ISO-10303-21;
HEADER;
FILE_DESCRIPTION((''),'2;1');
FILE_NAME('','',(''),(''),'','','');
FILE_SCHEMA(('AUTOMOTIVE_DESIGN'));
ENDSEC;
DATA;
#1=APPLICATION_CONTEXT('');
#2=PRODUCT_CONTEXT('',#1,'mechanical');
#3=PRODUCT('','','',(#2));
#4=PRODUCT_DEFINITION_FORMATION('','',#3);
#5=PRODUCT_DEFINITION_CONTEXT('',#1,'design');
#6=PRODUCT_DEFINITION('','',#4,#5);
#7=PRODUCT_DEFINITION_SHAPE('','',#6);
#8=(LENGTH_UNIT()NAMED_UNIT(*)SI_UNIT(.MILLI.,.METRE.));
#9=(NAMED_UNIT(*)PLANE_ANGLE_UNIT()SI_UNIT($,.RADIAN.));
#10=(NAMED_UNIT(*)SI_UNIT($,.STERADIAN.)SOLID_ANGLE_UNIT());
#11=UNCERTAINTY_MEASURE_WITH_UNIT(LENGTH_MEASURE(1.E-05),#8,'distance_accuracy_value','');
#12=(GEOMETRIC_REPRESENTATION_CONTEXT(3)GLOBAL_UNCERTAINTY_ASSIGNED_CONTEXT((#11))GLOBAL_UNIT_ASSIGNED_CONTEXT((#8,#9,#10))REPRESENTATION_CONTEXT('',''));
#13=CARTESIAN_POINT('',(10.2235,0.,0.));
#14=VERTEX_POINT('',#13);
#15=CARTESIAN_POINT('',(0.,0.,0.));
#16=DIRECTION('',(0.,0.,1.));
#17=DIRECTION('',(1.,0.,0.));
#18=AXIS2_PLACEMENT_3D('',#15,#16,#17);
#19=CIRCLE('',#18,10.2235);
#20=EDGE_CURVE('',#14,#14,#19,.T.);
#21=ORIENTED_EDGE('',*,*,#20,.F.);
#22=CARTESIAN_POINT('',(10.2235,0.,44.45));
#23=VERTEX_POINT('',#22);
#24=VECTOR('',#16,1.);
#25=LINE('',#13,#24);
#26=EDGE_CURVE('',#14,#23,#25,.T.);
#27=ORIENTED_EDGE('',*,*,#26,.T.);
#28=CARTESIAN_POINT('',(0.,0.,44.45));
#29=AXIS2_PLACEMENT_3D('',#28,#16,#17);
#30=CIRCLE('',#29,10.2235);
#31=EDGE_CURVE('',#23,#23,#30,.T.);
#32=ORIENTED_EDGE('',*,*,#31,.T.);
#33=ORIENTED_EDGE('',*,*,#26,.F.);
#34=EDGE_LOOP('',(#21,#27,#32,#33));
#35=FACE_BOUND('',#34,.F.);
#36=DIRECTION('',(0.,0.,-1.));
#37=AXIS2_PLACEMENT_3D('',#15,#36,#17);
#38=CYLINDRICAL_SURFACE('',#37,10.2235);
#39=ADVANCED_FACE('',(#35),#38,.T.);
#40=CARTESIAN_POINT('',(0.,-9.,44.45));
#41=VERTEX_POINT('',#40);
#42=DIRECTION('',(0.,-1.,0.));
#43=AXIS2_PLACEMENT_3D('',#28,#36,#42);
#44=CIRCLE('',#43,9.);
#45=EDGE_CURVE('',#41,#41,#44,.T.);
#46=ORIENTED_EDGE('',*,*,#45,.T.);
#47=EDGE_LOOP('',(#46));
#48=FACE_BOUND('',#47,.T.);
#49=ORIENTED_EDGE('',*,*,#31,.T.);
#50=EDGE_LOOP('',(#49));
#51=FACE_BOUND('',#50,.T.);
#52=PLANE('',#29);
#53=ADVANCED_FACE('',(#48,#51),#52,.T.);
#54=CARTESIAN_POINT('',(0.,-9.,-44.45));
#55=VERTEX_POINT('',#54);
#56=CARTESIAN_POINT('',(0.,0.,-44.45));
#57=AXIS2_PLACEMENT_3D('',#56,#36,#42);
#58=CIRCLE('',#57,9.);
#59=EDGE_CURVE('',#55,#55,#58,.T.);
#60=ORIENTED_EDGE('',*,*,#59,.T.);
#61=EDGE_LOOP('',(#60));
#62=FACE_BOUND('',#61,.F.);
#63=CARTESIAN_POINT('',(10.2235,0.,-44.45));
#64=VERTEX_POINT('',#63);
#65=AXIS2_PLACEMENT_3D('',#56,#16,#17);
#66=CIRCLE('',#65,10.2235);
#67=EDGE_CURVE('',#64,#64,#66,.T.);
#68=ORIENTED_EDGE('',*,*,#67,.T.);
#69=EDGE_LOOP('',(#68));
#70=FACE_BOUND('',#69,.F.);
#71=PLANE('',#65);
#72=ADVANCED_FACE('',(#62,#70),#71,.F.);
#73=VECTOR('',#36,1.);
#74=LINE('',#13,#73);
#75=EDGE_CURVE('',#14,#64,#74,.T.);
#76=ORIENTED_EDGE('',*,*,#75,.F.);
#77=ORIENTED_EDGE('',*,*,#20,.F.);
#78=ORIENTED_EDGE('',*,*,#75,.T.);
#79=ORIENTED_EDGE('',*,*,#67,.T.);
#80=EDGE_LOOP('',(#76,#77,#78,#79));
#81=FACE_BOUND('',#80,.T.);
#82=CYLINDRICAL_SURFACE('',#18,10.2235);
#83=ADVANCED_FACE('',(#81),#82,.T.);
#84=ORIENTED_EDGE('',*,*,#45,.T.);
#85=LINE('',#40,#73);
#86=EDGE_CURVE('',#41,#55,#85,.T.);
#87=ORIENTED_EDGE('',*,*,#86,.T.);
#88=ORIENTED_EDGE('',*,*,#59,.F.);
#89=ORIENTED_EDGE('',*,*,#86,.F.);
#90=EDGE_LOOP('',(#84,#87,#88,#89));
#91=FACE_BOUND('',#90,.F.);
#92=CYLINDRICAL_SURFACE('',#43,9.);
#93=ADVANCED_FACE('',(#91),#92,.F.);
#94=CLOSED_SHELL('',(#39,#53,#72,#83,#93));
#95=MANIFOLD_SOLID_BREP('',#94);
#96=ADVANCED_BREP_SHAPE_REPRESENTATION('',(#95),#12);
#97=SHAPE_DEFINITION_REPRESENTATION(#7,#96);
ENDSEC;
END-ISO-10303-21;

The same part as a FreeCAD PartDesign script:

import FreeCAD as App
import Part
import Sketcher

V = App.Vector
Q = App.Units.Quantity

doc = App.newDocument("Part")
params = doc.addObject("Spreadsheet::Sheet", "Params")
for row, (alias, value) in enumerate([
    ("sketch1_diameter", "0.805 in"),
    ("pad1_length", "3.5 in"),
    ("hole_diameter", "18 mm"),
], start=1):
    params.set(f"A{row}", alias)
    params.set(f"B{row}", "=" + value)
    params.setAlias(f"B{row}", alias)

body = doc.addObject("PartDesign::Body", "Body")

sketch1 = body.newObject("Sketcher::SketchObject", "Sketch")
sketch1.AttachmentSupport = (doc.getObject("XY_Plane"), [""])
sketch1.MapMode = "FlatFace"
sketch1.addGeometry(Part.Circle(V(0, 0, 0), V(0, 0, 1), 10), False)
sketch1.addConstraint(Sketcher.Constraint("Coincident", 0, 3, -1, 1))
sketch1.addConstraint(Sketcher.Constraint("Diameter", 0, Q("0.805 in")))
sketch1.setExpression("Constraints[1]", "Params.sketch1_diameter")
pad1 = body.newObject("PartDesign::Pad", "Pad")
pad1.Profile = sketch1
pad1.setExpression("Length", "Params.pad1_length")
pad1.Midplane = True

sketch2 = body.newObject("Sketcher::SketchObject", "Sketch001")
sketch2.AttachmentSupport = (doc.getObject("XY_Plane"), [""])
sketch2.MapMode = "FlatFace"
sketch2.AttachmentOffset = App.Placement(V(0, 0, 1.75 * 25.4), App.Rotation())
sketch2.addGeometry(Part.Circle(V(0, 0, 0), V(0, 0, 1), 9), False)
sketch2.addConstraint(Sketcher.Constraint("Coincident", 0, 3, -1, 1))
sketch2.addConstraint(Sketcher.Constraint("Diameter", 0, Q("18 mm")))
doc.recompute()
hole = body.newObject("PartDesign::Hole", "Hole")
hole.Profile = sketch2
hole.ThreadType = "None"
hole.setExpression("Diameter", "Params.hole_diameter")
hole.DepthType = "ThroughAll"

doc.recompute()
